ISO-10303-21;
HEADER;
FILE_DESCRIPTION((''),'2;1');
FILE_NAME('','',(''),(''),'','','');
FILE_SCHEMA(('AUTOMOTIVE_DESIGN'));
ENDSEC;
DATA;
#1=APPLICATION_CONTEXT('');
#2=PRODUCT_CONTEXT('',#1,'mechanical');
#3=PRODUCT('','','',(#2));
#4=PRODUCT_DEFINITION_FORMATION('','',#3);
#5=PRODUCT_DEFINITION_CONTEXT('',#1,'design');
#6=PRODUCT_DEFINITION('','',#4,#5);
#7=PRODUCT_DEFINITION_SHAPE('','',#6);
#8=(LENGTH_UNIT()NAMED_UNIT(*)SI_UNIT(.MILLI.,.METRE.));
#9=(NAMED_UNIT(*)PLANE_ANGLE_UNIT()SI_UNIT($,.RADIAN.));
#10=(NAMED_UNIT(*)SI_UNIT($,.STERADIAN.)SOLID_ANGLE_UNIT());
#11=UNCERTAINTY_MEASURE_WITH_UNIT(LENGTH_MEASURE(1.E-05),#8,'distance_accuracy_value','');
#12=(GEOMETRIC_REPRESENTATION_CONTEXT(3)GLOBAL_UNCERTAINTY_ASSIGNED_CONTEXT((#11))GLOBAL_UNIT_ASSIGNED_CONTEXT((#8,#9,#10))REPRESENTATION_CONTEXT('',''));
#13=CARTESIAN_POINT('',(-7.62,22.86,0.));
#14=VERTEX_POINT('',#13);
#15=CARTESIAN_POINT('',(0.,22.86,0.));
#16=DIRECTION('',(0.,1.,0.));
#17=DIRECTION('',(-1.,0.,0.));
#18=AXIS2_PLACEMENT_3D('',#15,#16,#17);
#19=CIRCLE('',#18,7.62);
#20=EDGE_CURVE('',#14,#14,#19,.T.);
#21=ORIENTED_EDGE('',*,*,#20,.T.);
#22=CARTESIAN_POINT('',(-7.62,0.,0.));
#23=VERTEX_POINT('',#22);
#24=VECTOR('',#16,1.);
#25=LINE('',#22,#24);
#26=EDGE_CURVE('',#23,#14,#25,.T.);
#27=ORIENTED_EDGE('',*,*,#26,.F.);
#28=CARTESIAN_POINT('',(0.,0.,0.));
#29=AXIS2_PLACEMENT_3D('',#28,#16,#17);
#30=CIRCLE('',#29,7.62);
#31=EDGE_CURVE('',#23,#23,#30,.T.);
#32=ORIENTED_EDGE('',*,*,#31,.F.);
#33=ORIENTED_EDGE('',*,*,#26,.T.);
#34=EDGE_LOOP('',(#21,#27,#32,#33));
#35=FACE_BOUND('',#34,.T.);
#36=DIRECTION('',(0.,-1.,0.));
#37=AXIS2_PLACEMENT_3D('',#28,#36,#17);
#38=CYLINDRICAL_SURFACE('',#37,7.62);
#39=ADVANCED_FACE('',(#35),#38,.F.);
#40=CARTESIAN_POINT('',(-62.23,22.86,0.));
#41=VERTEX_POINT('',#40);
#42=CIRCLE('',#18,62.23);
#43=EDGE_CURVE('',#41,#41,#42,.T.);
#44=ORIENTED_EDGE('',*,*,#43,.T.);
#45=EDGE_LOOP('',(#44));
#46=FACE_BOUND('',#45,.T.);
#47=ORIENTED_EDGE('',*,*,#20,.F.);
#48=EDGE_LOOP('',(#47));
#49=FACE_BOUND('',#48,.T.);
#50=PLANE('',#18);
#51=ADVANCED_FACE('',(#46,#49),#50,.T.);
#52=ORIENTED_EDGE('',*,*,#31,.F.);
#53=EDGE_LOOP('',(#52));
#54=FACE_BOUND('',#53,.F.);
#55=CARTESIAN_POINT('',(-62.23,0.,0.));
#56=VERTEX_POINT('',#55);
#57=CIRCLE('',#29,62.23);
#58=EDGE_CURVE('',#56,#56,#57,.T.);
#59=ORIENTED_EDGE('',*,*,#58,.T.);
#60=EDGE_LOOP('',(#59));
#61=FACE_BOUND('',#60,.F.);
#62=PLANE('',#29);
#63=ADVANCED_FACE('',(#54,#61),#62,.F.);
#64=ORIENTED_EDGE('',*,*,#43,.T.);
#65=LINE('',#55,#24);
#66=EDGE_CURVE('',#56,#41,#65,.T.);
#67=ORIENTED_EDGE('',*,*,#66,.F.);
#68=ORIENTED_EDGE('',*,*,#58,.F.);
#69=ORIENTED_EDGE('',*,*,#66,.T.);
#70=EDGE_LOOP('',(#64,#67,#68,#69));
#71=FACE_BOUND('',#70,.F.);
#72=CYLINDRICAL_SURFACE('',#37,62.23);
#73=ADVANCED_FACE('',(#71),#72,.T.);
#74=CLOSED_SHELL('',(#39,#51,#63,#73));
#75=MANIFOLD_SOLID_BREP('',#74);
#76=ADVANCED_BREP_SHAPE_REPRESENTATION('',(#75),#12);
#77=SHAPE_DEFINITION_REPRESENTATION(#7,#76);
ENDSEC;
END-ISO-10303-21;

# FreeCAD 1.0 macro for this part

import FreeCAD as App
import Part
import Sketcher
from FreeCAD import Vector
Q = App.Units.Quantity

doc = App.newDocument("Part")
params = doc.addObject("Spreadsheet::Sheet", "Params")
for row, (alias, value) in enumerate([
    ("sketch1_diameter", "4.9 in"),
    ("sketch1_diameter2", "0.6 in"),
    ("pad1_length", "0.9 in"),
], start=1):
    params.set(f"A{row}", alias)
    params.set(f"B{row}", "=" + value)
    params.setAlias(f"B{row}", alias)

body = doc.addObject("PartDesign::Body", "Body")

sketch1 = doc.addObject("Sketcher::SketchObject", "Sketch")
body.addObject(sketch1)
sketch1.AttachmentSupport = (doc.XZ_Plane, [""])
sketch1.MapMode = "FlatFace"
sketch1.addGeometry(Part.Circle(Vector(0, 0, 0), Vector(0, 0, 1), 62), False)
sketch1.addGeometry(Part.Circle(Vector(0, 0, 0), Vector(0, 0, 1), 8), False)
sketch1.addConstraint(Sketcher.Constraint("Coincident", 0, 3, -1, 1))
sketch1.addConstraint(Sketcher.Constraint("Coincident", 1, 3, -1, 1))
sketch1.addConstraint(Sketcher.Constraint("Diameter", 0, Q("4.9 in")))
sketch1.addConstraint(Sketcher.Constraint("Diameter", 1, Q("0.6 in")))
sketch1.setExpression("Constraints[2]", "Params.sketch1_diameter")
sketch1.setExpression("Constraints[3]", "Params.sketch1_diameter2")
pad1 = doc.addObject("PartDesign::Pad", "Pad")
body.addObject(pad1)
pad1.Profile = sketch1
pad1.setExpression("Length", "Params.pad1_length")
pad1.Reversed = True

doc.recompute()
